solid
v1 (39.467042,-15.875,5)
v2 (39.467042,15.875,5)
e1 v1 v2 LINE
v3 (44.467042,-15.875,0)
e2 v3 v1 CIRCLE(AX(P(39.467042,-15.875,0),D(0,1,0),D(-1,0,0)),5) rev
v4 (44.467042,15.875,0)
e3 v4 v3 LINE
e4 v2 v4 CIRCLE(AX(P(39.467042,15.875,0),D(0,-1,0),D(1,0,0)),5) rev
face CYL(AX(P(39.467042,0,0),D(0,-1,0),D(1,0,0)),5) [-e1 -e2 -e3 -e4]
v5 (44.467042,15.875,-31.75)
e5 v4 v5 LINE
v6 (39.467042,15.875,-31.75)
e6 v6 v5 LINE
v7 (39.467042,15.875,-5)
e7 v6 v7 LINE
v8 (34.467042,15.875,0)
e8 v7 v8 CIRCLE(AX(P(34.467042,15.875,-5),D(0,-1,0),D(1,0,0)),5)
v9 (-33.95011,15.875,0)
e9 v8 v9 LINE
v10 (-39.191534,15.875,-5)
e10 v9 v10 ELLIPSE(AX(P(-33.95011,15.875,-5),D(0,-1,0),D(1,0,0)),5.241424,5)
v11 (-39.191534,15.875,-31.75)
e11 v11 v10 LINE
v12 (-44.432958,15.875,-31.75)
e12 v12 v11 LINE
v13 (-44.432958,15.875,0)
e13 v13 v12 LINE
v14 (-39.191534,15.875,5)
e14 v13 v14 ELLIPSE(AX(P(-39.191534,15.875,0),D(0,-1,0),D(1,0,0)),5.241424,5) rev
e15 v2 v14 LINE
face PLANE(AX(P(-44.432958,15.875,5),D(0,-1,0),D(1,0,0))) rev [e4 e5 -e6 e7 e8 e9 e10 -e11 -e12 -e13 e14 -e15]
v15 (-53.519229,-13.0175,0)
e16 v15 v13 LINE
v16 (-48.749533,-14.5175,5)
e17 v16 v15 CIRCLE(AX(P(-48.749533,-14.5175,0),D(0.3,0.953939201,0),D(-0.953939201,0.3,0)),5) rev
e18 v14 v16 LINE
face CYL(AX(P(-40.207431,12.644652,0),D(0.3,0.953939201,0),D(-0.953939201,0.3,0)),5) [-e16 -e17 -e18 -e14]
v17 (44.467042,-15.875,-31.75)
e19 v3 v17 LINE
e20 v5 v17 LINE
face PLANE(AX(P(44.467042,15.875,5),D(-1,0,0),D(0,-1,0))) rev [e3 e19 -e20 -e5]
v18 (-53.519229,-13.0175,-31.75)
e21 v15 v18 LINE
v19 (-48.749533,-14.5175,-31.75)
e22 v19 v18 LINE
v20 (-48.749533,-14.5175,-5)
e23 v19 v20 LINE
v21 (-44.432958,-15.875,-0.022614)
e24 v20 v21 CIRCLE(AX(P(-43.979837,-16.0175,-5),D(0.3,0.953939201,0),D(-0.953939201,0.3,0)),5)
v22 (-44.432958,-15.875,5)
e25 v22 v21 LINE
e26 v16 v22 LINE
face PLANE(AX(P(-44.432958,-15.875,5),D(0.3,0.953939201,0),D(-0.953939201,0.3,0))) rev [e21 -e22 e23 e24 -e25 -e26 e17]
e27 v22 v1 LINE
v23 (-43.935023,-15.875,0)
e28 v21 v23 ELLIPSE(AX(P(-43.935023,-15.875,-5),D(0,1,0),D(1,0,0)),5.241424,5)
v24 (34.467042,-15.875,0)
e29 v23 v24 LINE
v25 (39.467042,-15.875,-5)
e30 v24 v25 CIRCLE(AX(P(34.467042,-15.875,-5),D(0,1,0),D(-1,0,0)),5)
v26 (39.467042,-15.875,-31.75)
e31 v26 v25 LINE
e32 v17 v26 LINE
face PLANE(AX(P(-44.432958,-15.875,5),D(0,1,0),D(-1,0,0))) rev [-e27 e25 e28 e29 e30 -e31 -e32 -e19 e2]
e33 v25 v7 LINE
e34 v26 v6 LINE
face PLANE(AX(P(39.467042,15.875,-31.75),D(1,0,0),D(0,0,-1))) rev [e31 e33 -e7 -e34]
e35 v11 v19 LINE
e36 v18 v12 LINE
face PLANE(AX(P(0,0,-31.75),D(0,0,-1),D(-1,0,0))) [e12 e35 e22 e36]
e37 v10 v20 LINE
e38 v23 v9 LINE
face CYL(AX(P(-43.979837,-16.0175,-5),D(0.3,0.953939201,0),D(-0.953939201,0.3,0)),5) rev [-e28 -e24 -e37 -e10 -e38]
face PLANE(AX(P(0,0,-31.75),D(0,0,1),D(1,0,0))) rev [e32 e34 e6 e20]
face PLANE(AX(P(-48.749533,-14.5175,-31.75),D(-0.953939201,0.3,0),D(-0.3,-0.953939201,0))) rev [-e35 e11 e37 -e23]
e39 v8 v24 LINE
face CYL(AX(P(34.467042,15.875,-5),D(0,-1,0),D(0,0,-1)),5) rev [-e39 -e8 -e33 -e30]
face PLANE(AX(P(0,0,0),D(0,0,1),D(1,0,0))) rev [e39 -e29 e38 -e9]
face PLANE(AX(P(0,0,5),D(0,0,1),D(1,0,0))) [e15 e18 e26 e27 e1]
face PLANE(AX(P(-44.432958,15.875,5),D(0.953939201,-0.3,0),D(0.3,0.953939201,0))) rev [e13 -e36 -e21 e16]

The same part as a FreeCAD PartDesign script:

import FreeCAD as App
import Part
import Sketcher
from FreeCAD import Vector
Q = App.Units.Quantity


def edges_at(feature, points):
    """Names of the edges that pass closest to the given points."""
    edges = feature.Shape.Edges
    near = lambda p: min(range(len(edges)), key=lambda i: edges[i].distToShape(Part.Vertex(*p))[0])
    return sorted({f"Edge{near(p) + 1}" for p in points})

doc = App.newDocument("Part")
body = doc.addObject("PartDesign::Body", "Body")

# Sketch on XY plane
sketch1 = doc.addObject("Sketcher::SketchObject", "Sketch")
body.addObject(sketch1)
sketch1.AttachmentSupport = (doc.XY_Plane, [""])
sketch1.MapMode = "FlatFace"
sketch1.addGeometry([
    Part.LineSegment(Vector(44, 16, 0), Vector(-44, 16, 0)),  # 0
    Part.LineSegment(Vector(-44, 16, 0), Vector(-54, -13, 0)),  # 1
    Part.LineSegment(Vector(-54, -13, 0), Vector(-44, -16, 0)),  # 2
    Part.LineSegment(Vector(-44, -16, 0), Vector(44, -16, 0)),  # 3
    Part.LineSegment(Vector(44, -16, 0), Vector(44, 16, 0)),  # 4
], False)
sketch1.addConstraint([
    Sketcher.Constraint("Coincident", 0, 2, 1, 1),
    Sketcher.Constraint("Coincident", 1, 2, 2, 1),
    Sketcher.Constraint("Coincident", 2, 2, 3, 1),
    Sketcher.Constraint("Coincident", 3, 2, 4, 1),
    Sketcher.Constraint("Coincident", 4, 2, 0, 1),
    Sketcher.Constraint("Horizontal", 0),
    Sketcher.Constraint("Horizontal", 3),
    Sketcher.Constraint("Vertical", 4),
    Sketcher.Constraint("Symmetric", 0, 2, 2, 2, -1),
    Sketcher.Constraint("Perpendicular", 1, 2),
    Sketcher.Constraint("DistanceX", 0, 2, 0, 1, Q("3.5 in")),
    Sketcher.Constraint("DistanceY", 4, 1, 4, 2, Q("1.25 in")),
    Sketcher.Constraint("Distance", 2, Q("0.375 in")),
    Sketcher.Constraint("DistanceX", 0, 2, -1, 1, 44.432958),
])
pad1 = doc.addObject("PartDesign::Pad", "Pad")
body.addObject(pad1)
pad1.Profile = sketch1
pad1.Length = 5

# Sketch on XY plane
sketch2 = doc.addObject("Sketcher::SketchObject", "Sketch001")
body.addObject(sketch2)
sketch2.AttachmentSupport = (doc.XY_Plane, [""])
sketch2.MapMode = "FlatFace"
sketch2.addGeometry([
    Part.LineSegment(Vector(39.5, -15.9, 0), Vector(39.5, 15.9, 0)),  # 0
    Part.LineSegment(Vector(39.5, 15.9, 0), Vector(44.5, 15.9, 0)),  # 1
    Part.LineSegment(Vector(44.5, 15.9, 0), Vector(44.5, -15.9, 0)),  # 2
    Part.LineSegment(Vector(44.5, -15.9, 0), Vector(39.5, -15.9, 0)),  # 3
    Part.LineSegment(Vector(-39.2, 15.9, 0), Vector(-48.7, -14.5, 0)),  # 4
    Part.LineSegment(Vector(-48.7, -14.5, 0), Vector(-53.5, -13, 0)),  # 5
    Part.LineSegment(Vector(-53.5, -13, 0), Vector(-44.4, 15.9, 0)),  # 6
    Part.LineSegment(Vector(-44.4, 15.9, 0), Vector(-39.2, 15.9, 0)),  # 7
], False)
sketch2.addConstraint([
    Sketcher.Constraint("Coincident", 0, 2, 1, 1),
    Sketcher.Constraint("Coincident", 1, 2, 2, 1),
    Sketcher.Constraint("Coincident", 2, 2, 3, 1),
    Sketcher.Constraint("Coincident", 3, 2, 0, 1),
    Sketcher.Constraint("Coincident", 4, 2, 5, 1),
    Sketcher.Constraint("Coincident", 5, 2, 6, 1),
    Sketcher.Constraint("Coincident", 6, 2, 7, 1),
    Sketcher.Constraint("Coincident", 7, 2, 4, 1),
    Sketcher.Constraint("Vertical", 0),
    Sketcher.Constraint("Horizontal", 1),
    Sketcher.Constraint("Vertical", 2),
    Sketcher.Constraint("Horizontal", 3),
    Sketcher.Constraint("Horizontal", 7),
    Sketcher.Constraint("Perpendicular", 4, 5),
    Sketcher.Constraint("Perpendicular", 5, 6),
    Sketcher.Constraint("Horizontal", 1, 2, 6, 2),
    Sketcher.Constraint("DistanceY", 0, 1, 0, 2, Q("1.25 in")),
    Sketcher.Constraint("DistanceX", 6, 2, 1, 2, Q("3.5 in")),
    Sketcher.Constraint("DistanceY", -1, 1, 0, 2, Q("0.625 in")),
    Sketcher.Constraint("DistanceX", 1, 1, 1, 2, 5.0),
    Sketcher.Constraint("DistanceY", 5, 2, -1, 1, Q("0.5125 in")),
    Sketcher.Constraint("Distance", 5, 5.0),
    Sketcher.Constraint("DistanceY", 4, 2, -1, 1, 14.5175),
    Sketcher.Constraint("DistanceX", -1, 1, 0, 2, 39.467042),
])
pad2 = doc.addObject("PartDesign::Pad", "Pad001")
body.addObject(pad2)
pad2.Profile = sketch2
pad2.Length = Q("1.25 in")
pad2.Reversed = True
doc.recompute()

fillet = doc.addObject("PartDesign::Fillet", "Fillet")
body.addObject(fillet)
fillet.Base = (pad2, edges_at(pad2, [
    (-48.976, 1.429, 5),
    (-43.971, 0.679, 0),
    (39.467, 0, 0),
    (44.467, 0, 5),
]))
fillet.Radius = 5

doc.recompute()
